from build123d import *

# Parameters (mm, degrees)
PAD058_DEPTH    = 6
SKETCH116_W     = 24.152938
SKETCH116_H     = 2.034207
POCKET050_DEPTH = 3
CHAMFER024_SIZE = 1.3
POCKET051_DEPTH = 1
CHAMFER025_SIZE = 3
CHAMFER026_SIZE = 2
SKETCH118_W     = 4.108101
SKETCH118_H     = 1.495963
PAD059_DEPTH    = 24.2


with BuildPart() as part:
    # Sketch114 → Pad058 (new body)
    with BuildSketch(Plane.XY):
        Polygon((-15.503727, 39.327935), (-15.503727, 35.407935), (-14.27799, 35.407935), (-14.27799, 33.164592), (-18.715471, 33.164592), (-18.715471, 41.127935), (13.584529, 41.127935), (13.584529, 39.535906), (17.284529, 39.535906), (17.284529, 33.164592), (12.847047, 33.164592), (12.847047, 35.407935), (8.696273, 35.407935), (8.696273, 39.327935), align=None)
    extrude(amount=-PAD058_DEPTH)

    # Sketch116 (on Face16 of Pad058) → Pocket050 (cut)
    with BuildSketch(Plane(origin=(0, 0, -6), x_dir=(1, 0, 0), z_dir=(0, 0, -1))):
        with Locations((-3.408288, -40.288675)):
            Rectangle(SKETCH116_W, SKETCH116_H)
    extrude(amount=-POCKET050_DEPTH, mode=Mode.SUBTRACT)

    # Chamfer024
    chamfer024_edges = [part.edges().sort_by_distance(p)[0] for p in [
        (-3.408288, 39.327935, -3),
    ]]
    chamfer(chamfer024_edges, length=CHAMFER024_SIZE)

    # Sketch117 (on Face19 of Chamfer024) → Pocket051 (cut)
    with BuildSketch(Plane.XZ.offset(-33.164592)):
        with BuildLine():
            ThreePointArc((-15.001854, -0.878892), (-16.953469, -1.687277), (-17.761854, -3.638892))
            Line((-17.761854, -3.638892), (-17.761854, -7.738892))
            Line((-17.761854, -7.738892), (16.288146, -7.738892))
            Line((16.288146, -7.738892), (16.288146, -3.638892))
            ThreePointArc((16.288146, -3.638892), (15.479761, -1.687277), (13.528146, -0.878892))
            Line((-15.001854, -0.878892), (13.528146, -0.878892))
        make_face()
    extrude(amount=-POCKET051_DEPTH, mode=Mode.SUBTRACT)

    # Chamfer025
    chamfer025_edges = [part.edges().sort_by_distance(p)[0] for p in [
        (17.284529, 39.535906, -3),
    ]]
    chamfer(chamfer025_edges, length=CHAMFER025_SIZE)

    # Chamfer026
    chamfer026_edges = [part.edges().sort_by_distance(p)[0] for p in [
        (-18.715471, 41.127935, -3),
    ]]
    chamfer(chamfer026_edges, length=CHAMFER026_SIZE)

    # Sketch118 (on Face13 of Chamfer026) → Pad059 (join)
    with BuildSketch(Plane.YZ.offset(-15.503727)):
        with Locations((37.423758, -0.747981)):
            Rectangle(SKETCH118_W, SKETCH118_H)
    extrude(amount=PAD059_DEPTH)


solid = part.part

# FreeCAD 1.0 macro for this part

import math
import FreeCAD as App
import Part
import Sketcher
Q = App.Units.Quantity


def edges_at(feature, points):
    """Names of the edges that pass closest to the given points."""
    edges = feature.Shape.Edges
    near = lambda p: min(range(len(edges)), key=lambda i: edges[i].distToShape(Part.Vertex(*p))[0])
    return sorted({f"Edge{near(p) + 1}" for p in points})


def add_polygon(sketch, points):
    """Adds a closed chain of lines whose ends are joined by coincident constraints."""
    first, n = sketch.GeometryCount, len(points)
    for a, b in zip(points, points[1:] + points[:1]):
        sketch.addGeometry(Part.LineSegment(App.Vector(*a, 0), App.Vector(*b, 0)), False)
    for i in range(n):
        sketch.addConstraint(Sketcher.Constraint("Coincident", first + i, 2, first + (i + 1) % n, 1))

doc = App.newDocument("Part")
body = doc.addObject("PartDesign::Body", "Body")

sketch1 = body.newObject("Sketcher::SketchObject", "Sketch")
sketch1.AttachmentSupport = (doc.getObject("XY_Plane"), [""])
sketch1.MapMode = "FlatFace"
add_polygon(sketch1, [(-15.5, 35.4), (-15.5, 39.3), (8.7, 39.3), (8.7, 35.4), (12.8, 35.4), (12.8, 33.2), (17.3, 33.2), (17.3, 39.5), (13.6, 39.5), (13.6, 41.1), (-18.7, 41.1), (-18.7, 33.2), (-14.3, 33.2), (-14.3, 35.4)])
sketch1.addConstraint([
    Sketcher.Constraint("Vertical", 0),
    Sketcher.Constraint("Horizontal", 1),
    Sketcher.Constraint("Vertical", 2),
    Sketcher.Constraint("Horizontal", 3),
    Sketcher.Constraint("Vertical", 4),
    Sketcher.Constraint("Horizontal", 5),
    Sketcher.Constraint("Vertical", 6),
    Sketcher.Constraint("Horizontal", 7),
    Sketcher.Constraint("Vertical", 8),
    Sketcher.Constraint("Horizontal", 9),
    Sketcher.Constraint("Vertical", 10),
    Sketcher.Constraint("Horizontal", 11),
    Sketcher.Constraint("Vertical", 12),
    Sketcher.Constraint("Horizontal", 13),
    Sketcher.Constraint("Horizontal", 5, 2, 10, 2),
    Sketcher.Constraint("Horizontal", 3, 2, 12, 2),
    Sketcher.Constraint("Equal", 5, 11),
    Sketcher.Constraint("DistanceX", 1, 1, 1, 2, Q("24.2 mm")),
    Sketcher.Constraint("DistanceX", 7, 2, 7, 1, Q("3.7 mm")),
    Sketcher.Constraint("DistanceX", 9, 2, 9, 1, Q("32.3 mm")),
    Sketcher.Constraint("DistanceY", 0, 1, 0, 2, Q("3.92 mm")),
    Sketcher.Constraint("DistanceY", 1, 2, 8, 2, Q("1.8 mm")),
    Sketcher.Constraint("DistanceX", 5, 1, 5, 2, Q("4.437482 mm")),
    Sketcher.Constraint("DistanceY", 8, 1, 8, 2, Q("1.592029 mm")),
    Sketcher.Constraint("DistanceX", 3, 1, 3, 2, Q("4.150774 mm")),
    Sketcher.Constraint("DistanceY", 4, 2, 4, 1, Q("2.243343 mm")),
    Sketcher.Constraint("DistanceX", -1, 1, 5, 2, Q("17.284529 mm")),
    Sketcher.Constraint("DistanceY", -1, 1, 0, 2, Q("39.327935 mm")),
])
pad1 = body.newObject("PartDesign::Pad", "Pad")
pad1.Profile = sketch1
pad1.Length = 6
pad1.Reversed = True

sketch2 = body.newObject("Sketcher::SketchObject", "Sketch001")
sketch2.AttachmentSupport = (doc.getObject("XY_Plane"), [""])
sketch2.MapMode = "FlatFace"
sketch2.AttachmentOffset = App.Placement(App.Vector(0, 0, -6), App.Rotation())
add_polygon(sketch2, [(-15.5, 39.3), (-15.5, 41.3), (8.7, 41.3), (8.7, 39.3)])
sketch2.addConstraint([
    Sketcher.Constraint("Vertical", 0),
    Sketcher.Constraint("Horizontal", 1),
    Sketcher.Constraint("Vertical", 2),
    Sketcher.Constraint("Horizontal", 3),
    Sketcher.Constraint("DistanceX", 1, 1, 1, 2, Q("24.152938 mm")),
    Sketcher.Constraint("DistanceY", 0, 1, 0, 2, Q("2.034207 mm")),
    Sketcher.Constraint("DistanceY", -1, 1, 0, 2, Q("41.305779 mm")),
    Sketcher.Constraint("DistanceX", -1, 1, 1, 2, Q("8.668181 mm")),
])
pocket1 = body.newObject("PartDesign::Pocket", "Pocket")
pocket1.Profile = sketch2
pocket1.Length = 3
pocket1.Reversed = True
doc.recompute()

chamfer = body.newObject("PartDesign::Chamfer", "Chamfer")
chamfer.Base = (pocket1, edges_at(pocket1, [(-3.408, 39.328, -3)]))
chamfer.Size = 1.3

sketch3 = body.newObject("Sketcher::SketchObject", "Sketch002")
sketch3.AttachmentSupport = (doc.getObject("XZ_Plane"), [""])
sketch3.MapMode = "FlatFace"
sketch3.AttachmentOffset = App.Placement(App.Vector(0, 0, -33.164592), App.Rotation())
sketch3.addGeometry([
    Part.ArcOfCircle(Part.Circle(App.Vector(-15, -3.6, 0), App.Vector(0, 0, 1), 2.8), math.radians(90), math.radians(180)),
    Part.LineSegment(App.Vector(-17.8, -3.6, 0), App.Vector(-17.8, -7.7, 0)),
    Part.LineSegment(App.Vector(-17.8, -7.7, 0), App.Vector(16.3, -7.7, 0)),
    Part.LineSegment(App.Vector(16.3, -7.7, 0), App.Vector(16.3, -3.6, 0)),
    Part.ArcOfCircle(Part.Circle(App.Vector(13.5, -3.6, 0), App.Vector(0, 0, 1), 2.8), math.radians(0), math.radians(90)),
    Part.LineSegment(App.Vector(13.5, -0.9, 0), App.Vector(-15, -0.9, 0)),
], False)
sketch3.addConstraint([
    Sketcher.Constraint("Tangent", 0, 2, 1, 1),
    Sketcher.Constraint("Coincident", 1, 2, 2, 1),
    Sketcher.Constraint("Coincident", 2, 2, 3, 1),
    Sketcher.Constraint("Tangent", 3, 2, 4, 1),
    Sketcher.Constraint("Tangent", 4, 2, 5, 1),
    Sketcher.Constraint("Tangent", 5, 2, 0, 1),
    Sketcher.Constraint("Vertical", 1),
    Sketcher.Constraint("Horizontal", 2),
    Sketcher.Constraint("Vertical", 3),
    Sketcher.Constraint("Horizontal", 5),
    Sketcher.Constraint("Equal", 0, 4),
    Sketcher.Constraint("Radius", 0, Q("2.759999 mm")),
    Sketcher.Constraint("DistanceY", 1, 2, 1, 1, Q("4.1 mm")),
    Sketcher.Constraint("DistanceX", 2, 1, 2, 2, Q("34.05 mm")),
    Sketcher.Constraint("DistanceY", 0, 3, -1, 1, Q("3.638891 mm")),
    Sketcher.Constraint("DistanceX", 0, 3, -1, 1, Q("15.001855 mm")),
])
pocket2 = body.newObject("PartDesign::Pocket", "Pocket001")
pocket2.Profile = sketch3
pocket2.Length = 1
doc.recompute()

chamfer2 = body.newObject("PartDesign::Chamfer", "Chamfer001")
chamfer2.Base = (pocket2, edges_at(pocket2, [(17.285, 39.536, -3)]))
chamfer2.Size = 3
doc.recompute()

chamfer3 = body.newObject("PartDesign::Chamfer", "Chamfer002")
chamfer3.Base = (chamfer2, edges_at(chamfer2, [(-18.715, 41.128, -3)]))
chamfer3.Size = 2

sketch4 = body.newObject("Sketcher::SketchObject", "Sketch003")
sketch4.AttachmentSupport = (doc.getObject("YZ_Plane"), [""])
sketch4.MapMode = "FlatFace"
sketch4.AttachmentOffset = App.Placement(App.Vector(0, 0, -15.503727), App.Rotation())
add_polygon(sketch4, [(35.4, 0), (35.4, -1.5), (39.5, -1.5), (39.5, 0)])
sketch4.addConstraint([
    Sketcher.Constraint("Vertical", 0),
    Sketcher.Constraint("Horizontal", 1),
    Sketcher.Constraint("Vertical", 2),
    Sketcher.Constraint("Horizontal", 3),
    Sketcher.Constraint("PointOnObject", 2, 2, -1),
    Sketcher.Constraint("DistanceX", 1, 1, 1, 2, Q("4.108101 mm")),
    Sketcher.Constraint("DistanceY", 0, 2, 0, 1, Q("1.495963 mm")),
    Sketcher.Constraint("DistanceX", -1, 1, 1, 2, Q("39.477809 mm")),
])
pad2 = body.newObject("PartDesign::Pad", "Pad001")
pad2.Profile = sketch4
pad2.Length = 24.2

doc.recompute()
